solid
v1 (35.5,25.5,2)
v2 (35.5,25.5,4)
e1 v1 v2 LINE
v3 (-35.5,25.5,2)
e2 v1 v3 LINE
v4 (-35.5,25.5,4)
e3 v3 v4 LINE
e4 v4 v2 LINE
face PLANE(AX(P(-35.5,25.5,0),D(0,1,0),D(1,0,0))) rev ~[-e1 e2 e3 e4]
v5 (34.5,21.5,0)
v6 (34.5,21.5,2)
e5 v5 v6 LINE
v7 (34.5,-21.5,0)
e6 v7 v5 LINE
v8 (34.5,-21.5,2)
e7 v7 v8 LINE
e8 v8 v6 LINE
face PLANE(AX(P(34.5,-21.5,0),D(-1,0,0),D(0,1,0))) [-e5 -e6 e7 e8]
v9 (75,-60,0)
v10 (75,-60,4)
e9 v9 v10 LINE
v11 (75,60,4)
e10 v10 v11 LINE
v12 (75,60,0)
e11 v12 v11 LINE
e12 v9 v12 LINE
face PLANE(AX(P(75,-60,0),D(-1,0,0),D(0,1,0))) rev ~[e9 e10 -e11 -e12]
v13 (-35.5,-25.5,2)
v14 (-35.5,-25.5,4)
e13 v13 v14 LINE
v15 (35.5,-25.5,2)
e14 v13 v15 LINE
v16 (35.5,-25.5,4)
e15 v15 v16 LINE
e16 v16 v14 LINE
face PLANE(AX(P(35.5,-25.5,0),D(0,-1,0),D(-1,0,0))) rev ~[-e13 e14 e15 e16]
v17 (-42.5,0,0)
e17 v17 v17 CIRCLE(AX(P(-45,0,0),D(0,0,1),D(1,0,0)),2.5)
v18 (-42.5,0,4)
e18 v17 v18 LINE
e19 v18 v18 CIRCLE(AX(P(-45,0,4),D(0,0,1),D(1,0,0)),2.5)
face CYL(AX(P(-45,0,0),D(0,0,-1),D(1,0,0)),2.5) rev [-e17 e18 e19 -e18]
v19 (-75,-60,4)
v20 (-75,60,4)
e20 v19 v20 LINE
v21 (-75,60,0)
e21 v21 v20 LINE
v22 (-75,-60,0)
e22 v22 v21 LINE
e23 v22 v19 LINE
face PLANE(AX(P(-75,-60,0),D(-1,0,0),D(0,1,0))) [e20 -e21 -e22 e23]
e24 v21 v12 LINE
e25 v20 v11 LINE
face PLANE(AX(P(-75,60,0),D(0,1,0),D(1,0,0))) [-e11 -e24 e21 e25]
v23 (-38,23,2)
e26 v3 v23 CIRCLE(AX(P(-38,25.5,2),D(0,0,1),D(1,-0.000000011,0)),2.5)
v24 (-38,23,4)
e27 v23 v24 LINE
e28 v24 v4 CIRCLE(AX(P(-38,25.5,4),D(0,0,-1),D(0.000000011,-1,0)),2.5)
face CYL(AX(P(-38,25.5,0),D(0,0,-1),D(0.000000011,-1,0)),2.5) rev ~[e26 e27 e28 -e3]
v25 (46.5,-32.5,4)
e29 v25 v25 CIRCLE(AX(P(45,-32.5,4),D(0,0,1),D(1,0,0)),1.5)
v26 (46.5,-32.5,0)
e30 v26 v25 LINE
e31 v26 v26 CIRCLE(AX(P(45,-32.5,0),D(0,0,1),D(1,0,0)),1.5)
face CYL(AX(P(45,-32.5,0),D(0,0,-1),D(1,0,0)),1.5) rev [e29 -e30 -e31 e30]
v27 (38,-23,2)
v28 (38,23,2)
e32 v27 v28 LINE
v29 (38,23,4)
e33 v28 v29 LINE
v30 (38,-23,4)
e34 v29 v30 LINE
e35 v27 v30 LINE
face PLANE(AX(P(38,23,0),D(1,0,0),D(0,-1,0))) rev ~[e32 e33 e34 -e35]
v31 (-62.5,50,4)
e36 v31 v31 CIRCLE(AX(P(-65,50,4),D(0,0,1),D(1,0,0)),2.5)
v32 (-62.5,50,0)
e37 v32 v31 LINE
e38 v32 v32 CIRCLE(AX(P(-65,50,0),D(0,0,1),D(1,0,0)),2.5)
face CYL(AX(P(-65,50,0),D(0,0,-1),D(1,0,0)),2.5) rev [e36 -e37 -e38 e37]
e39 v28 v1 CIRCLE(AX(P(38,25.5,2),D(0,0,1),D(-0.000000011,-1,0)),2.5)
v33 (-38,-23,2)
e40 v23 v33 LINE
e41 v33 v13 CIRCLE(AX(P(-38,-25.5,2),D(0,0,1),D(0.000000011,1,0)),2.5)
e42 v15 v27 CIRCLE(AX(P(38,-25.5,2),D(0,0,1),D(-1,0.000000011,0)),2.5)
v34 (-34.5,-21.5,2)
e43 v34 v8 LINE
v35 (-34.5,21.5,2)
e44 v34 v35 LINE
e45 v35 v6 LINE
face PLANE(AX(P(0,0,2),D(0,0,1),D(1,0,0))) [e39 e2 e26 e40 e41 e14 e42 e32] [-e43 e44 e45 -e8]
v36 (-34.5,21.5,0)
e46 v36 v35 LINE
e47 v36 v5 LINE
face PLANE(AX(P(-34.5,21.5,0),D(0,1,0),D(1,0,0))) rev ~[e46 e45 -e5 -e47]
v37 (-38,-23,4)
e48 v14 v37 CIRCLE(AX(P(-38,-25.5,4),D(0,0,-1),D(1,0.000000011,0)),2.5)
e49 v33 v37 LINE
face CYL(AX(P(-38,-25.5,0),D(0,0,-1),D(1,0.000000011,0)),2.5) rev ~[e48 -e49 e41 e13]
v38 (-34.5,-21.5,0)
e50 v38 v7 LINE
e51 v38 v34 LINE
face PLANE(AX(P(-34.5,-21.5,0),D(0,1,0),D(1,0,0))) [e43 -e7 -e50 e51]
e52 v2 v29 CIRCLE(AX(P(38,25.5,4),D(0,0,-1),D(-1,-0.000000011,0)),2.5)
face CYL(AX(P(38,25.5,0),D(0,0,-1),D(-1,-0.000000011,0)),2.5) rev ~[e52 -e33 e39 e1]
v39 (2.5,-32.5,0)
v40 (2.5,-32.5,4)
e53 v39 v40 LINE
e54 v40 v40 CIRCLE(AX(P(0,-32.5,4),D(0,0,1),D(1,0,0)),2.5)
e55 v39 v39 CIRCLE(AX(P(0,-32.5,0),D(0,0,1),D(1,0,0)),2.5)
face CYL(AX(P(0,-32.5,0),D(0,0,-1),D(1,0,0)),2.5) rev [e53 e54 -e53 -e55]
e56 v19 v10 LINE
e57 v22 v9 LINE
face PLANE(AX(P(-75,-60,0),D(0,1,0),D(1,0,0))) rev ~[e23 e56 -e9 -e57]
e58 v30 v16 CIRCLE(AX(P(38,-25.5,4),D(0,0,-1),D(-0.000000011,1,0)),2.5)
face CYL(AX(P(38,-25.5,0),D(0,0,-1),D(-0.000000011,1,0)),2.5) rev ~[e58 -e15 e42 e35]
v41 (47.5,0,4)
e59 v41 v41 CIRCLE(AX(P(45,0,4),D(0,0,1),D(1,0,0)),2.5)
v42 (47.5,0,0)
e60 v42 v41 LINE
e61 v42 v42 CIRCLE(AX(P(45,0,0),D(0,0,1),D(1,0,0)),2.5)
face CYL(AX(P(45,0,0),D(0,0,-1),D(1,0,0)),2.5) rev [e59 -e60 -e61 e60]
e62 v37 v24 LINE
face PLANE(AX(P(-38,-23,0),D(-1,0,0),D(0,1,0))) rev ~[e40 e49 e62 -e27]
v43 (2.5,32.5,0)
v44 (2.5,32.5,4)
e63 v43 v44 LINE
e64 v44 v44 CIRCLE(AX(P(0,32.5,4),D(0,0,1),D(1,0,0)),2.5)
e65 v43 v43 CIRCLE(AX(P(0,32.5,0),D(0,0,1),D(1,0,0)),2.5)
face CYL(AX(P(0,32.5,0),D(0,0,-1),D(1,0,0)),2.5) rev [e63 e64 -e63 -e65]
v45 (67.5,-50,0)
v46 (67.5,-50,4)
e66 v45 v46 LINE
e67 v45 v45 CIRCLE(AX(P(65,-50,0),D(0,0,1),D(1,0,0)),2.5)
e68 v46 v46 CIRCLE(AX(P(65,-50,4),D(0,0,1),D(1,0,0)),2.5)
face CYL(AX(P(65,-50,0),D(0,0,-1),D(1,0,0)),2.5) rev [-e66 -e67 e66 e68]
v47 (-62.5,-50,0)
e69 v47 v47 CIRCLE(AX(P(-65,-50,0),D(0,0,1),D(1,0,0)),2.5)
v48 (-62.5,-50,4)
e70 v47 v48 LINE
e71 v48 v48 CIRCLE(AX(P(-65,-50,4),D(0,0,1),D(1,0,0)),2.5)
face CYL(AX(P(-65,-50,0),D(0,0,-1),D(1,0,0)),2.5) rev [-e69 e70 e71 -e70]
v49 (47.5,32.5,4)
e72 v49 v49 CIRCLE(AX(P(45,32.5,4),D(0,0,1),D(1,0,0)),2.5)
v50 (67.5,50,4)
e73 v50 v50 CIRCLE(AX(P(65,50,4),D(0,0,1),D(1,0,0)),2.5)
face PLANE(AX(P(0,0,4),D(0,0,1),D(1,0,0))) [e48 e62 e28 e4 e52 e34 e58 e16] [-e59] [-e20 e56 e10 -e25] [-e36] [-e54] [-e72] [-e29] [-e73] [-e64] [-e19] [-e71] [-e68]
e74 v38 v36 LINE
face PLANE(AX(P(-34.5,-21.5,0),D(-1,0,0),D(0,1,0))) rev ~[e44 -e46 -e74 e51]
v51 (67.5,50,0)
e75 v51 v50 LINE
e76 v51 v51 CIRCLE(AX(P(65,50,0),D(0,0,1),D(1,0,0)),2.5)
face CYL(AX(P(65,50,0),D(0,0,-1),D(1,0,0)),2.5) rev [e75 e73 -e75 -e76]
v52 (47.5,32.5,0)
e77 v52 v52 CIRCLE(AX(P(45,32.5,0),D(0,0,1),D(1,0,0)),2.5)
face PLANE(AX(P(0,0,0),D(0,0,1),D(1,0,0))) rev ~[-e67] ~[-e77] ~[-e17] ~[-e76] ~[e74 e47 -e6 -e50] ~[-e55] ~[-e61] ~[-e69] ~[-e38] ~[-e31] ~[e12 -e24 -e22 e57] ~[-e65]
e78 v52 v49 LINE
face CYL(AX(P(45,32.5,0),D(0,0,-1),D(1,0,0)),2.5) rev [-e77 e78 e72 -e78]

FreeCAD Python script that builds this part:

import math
import FreeCAD as App
import Part
import Sketcher
Q = App.Units.Quantity

doc = App.newDocument("Part")
body = doc.addObject("PartDesign::Body", "Body")

sketch1 = doc.addObject("Sketcher::SketchObject", "Sketch")
body.addObject(sketch1)
sketch1.AttachmentSupport = (doc.XY_Plane, [""])
sketch1.MapMode = "FlatFace"
sketch1.addGeometry(Part.LineSegment(App.Vector(-75, 60, 0), App.Vector(-75, -60, 0)), False)
sketch1.addGeometry(Part.LineSegment(App.Vector(-75, -60, 0), App.Vector(75, -60, 0)), False)
sketch1.addGeometry(Part.LineSegment(App.Vector(75, -60, 0), App.Vector(75, 60, 0)), False)
sketch1.addGeometry(Part.LineSegment(App.Vector(75, 60, 0), App.Vector(-75, 60, 0)), False)
sketch1.addGeometry(Part.Circle(App.Vector(-65, -50, 0), App.Vector(0, 0, 1), 2.5), False)
sketch1.addGeometry(Part.Circle(App.Vector(0, -32.5, 0), App.Vector(0, 0, 1), 2.5), False)
sketch1.addGeometry(Part.Circle(App.Vector(65, -50, 0), App.Vector(0, 0, 1), 2.5), False)
sketch1.addGeometry(Part.Circle(App.Vector(45, -32.5, 0), App.Vector(0, 0, 1), 1.5), False)
sketch1.addGeometry(Part.Circle(App.Vector(-45, 0, 0), App.Vector(0, 0, 1), 2.5), False)
sketch1.addGeometry(Part.Circle(App.Vector(-65, 50, 0), App.Vector(0, 0, 1), 2.5), False)
sketch1.addGeometry(Part.ArcOfCircle(Part.Circle(App.Vector(-38, 25.5, 0), App.Vector(0, 0, 1), 2.5), math.radians(-0.000001), math.radians(270.000001)), False)
sketch1.addGeometry(Part.LineSegment(App.Vector(-35.5, 25.5, 0), App.Vector(35.5, 25.5, 0)), False)
sketch1.addGeometry(Part.ArcOfCircle(Part.Circle(App.Vector(38, 25.5, 0), App.Vector(0, 0, 1), 2.5), math.radians(-90.000001), math.radians(180.000001)), False)
sketch1.addGeometry(Part.LineSegment(App.Vector(38, 23, 0), App.Vector(38, -23, 0)), False)
sketch1.addGeometry(Part.ArcOfCircle(Part.Circle(App.Vector(38, -25.5, 0), App.Vector(0, 0, 1), 2.5), math.radians(179.999999), math.radians(450.000001)), False)
sketch1.addGeometry(Part.LineSegment(App.Vector(35.5, -25.5, 0), App.Vector(-35.5, -25.5, 0)), False)
sketch1.addGeometry(Part.ArcOfCircle(Part.Circle(App.Vector(-38, -25.5, 0), App.Vector(0, 0, 1), 2.5), math.radians(89.999999), math.radians(360.000001)), False)
sketch1.addGeometry(Part.LineSegment(App.Vector(-38, -23, 0), App.Vector(-38, 23, 0)), False)
sketch1.addGeometry(Part.Circle(App.Vector(45, 0, 0), App.Vector(0, 0, 1), 2.5), False)
sketch1.addGeometry(Part.Circle(App.Vector(0, 32.5, 0), App.Vector(0, 0, 1), 2.5), False)
sketch1.addGeometry(Part.Circle(App.Vector(45, 32.5, 0), App.Vector(0, 0, 1), 2.5), False)
sketch1.addGeometry(Part.Circle(App.Vector(65, 50, 0), App.Vector(0, 0, 1), 2.5), False)
sketch1.addConstraint(Sketcher.Constraint("Coincident", 0, 2, 1, 1))
sketch1.addConstraint(Sketcher.Constraint("Coincident", 1, 2, 2, 1))
sketch1.addConstraint(Sketcher.Constraint("Coincident", 2, 2, 3, 1))
sketch1.addConstraint(Sketcher.Constraint("Coincident", 3, 2, 0, 1))
sketch1.addConstraint(Sketcher.Constraint("Coincident", 10, 1, 11, 1))
sketch1.addConstraint(Sketcher.Constraint("Coincident", 11, 2, 12, 2))
sketch1.addConstraint(Sketcher.Constraint("Coincident", 12, 1, 13, 1))
sketch1.addConstraint(Sketcher.Constraint("Coincident", 13, 2, 14, 2))
sketch1.addConstraint(Sketcher.Constraint("Coincident", 14, 1, 15, 1))
sketch1.addConstraint(Sketcher.Constraint("Coincident", 15, 2, 16, 2))
sketch1.addConstraint(Sketcher.Constraint("Coincident", 16, 1, 17, 1))
sketch1.addConstraint(Sketcher.Constraint("Coincident", 17, 2, 10, 2))
sketch1.addConstraint(Sketcher.Constraint("Vertical", 0))
sketch1.addConstraint(Sketcher.Constraint("Horizontal", 1))
sketch1.addConstraint(Sketcher.Constraint("Vertical", 2))
sketch1.addConstraint(Sketcher.Constraint("Horizontal", 3))
sketch1.addConstraint(Sketcher.Constraint("Horizontal", 11))
sketch1.addConstraint(Sketcher.Constraint("Vertical", 13))
sketch1.addConstraint(Sketcher.Constraint("Horizontal", 15))
sketch1.addConstraint(Sketcher.Constraint("Vertical", 17))
sketch1.addConstraint(Sketcher.Constraint("Equal", 4, 5))
sketch1.addConstraint(Sketcher.Constraint("Equal", 5, 6))
sketch1.addConstraint(Sketcher.Constraint("Equal", 6, 8))
sketch1.addConstraint(Sketcher.Constraint("Equal", 8, 9))
sketch1.addConstraint(Sketcher.Constraint("Equal", 9, 10))
sketch1.addConstraint(Sketcher.Constraint("Equal", 10, 12))
sketch1.addConstraint(Sketcher.Constraint("Equal", 12, 14))
sketch1.addConstraint(Sketcher.Constraint("Equal", 14, 16))
sketch1.addConstraint(Sketcher.Constraint("Equal", 16, 18))
sketch1.addConstraint(Sketcher.Constraint("Equal", 18, 19))
sketch1.addConstraint(Sketcher.Constraint("Equal", 19, 20))
sketch1.addConstraint(Sketcher.Constraint("Equal", 20, 21))
sketch1.addConstraint(Sketcher.Constraint("Symmetric", 6, 3, 9, 3, -1, 1))
sketch1.addConstraint(Sketcher.Constraint("Symmetric", 10, 3, 14, 3, -1, 1))
sketch1.addConstraint(Sketcher.Constraint("Symmetric", 12, 3, 16, 3, -1, 1))
sketch1.addConstraint(Sketcher.Constraint("Symmetric", 8, 3, 18, 3, -1, 1))
sketch1.addConstraint(Sketcher.Constraint("Symmetric", 5, 3, 19, 3, -1, 1))
sketch1.addConstraint(Sketcher.Constraint("Symmetric", 4, 3, 21, 3, -1, 1))
sketch1.addConstraint(Sketcher.Constraint("Symmetric", 0, 2, 2, 2, -1, 1))
sketch1.addConstraint(Sketcher.Constraint("Symmetric", 4, 3, 6, 3, -2))
sketch1.addConstraint(Sketcher.Constraint("Symmetric", 10, 3, 12, 3, -2))
sketch1.addConstraint(Sketcher.Constraint("Symmetric", 7, 3, 20, 3, -1))
sketch1.addConstraint(Sketcher.Constraint("PointOnObject", 5, 3, -2))
sketch1.addConstraint(Sketcher.Constraint("PointOnObject", 8, 3, -1))
sketch1.addConstraint(Sketcher.Constraint("Horizontal", 5, 3, 7, 3))
sketch1.addConstraint(Sketcher.Constraint("Horizontal", 12, 3, 10, 1))
sketch1.addConstraint(Sketcher.Constraint("Horizontal", 16, 3, 14, 1))
sketch1.addConstraint(Sketcher.Constraint("Vertical", 7, 3, 18, 3))
sketch1.addConstraint(Sketcher.Constraint("Vertical", 14, 3, 12, 1))
sketch1.addConstraint(Sketcher.Constraint("Vertical", 10, 3, 16, 1))
sketch1.addConstraint(Sketcher.Constraint("Diameter", 4, Q("5 mm")))
sketch1.addConstraint(Sketcher.Constraint("Diameter", 7, Q("3 mm")))
sketch1.addConstraint(Sketcher.Constraint("DistanceX", 1, 1, 1, 2, Q("150 mm")))
sketch1.addConstraint(Sketcher.Constraint("DistanceX", 11, 1, 11, 2, Q("71 mm")))
sketch1.addConstraint(Sketcher.Constraint("DistanceY", 0, 2, 0, 1, Q("120 mm")))
sketch1.addConstraint(Sketcher.Constraint("DistanceY", 13, 2, 13, 1, Q("46 mm")))
sketch1.addConstraint(Sketcher.Constraint("DistanceX", 4, 3, -1, 1, Q("65 mm")))
sketch1.addConstraint(Sketcher.Constraint("DistanceY", 4, 3, -1, 1, Q("50 mm")))
sketch1.addConstraint(Sketcher.Constraint("DistanceX", -1, 1, 7, 3, Q("45 mm")))
sketch1.addConstraint(Sketcher.Constraint("DistanceY", 5, 3, 10, 3, Q("58 mm")))
pad1 = doc.addObject("PartDesign::Pad", "Pad")
body.addObject(pad1)
pad1.Profile = sketch1
pad1.Length = 4

sketch2 = doc.addObject("Sketcher::SketchObject", "Sketch001")
body.addObject(sketch2)
sketch2.AttachmentSupport = (doc.XY_Plane, [""])
sketch2.MapMode = "FlatFace"
sketch2.addGeometry(Part.ArcOfCircle(Part.Circle(App.Vector(38, 25.5, 0), App.Vector(0, 0, 1), 2.5), math.radians(-90.000001), math.radians(180.000001)), False)
sketch2.addGeometry(Part.LineSegment(App.Vector(35.5, 25.5, 0), App.Vector(-35.5, 25.5, 0)), False)
sketch2.addGeometry(Part.ArcOfCircle(Part.Circle(App.Vector(-38, 25.5, 0), App.Vector(0, 0, 1), 2.5), math.radians(-0.000001), math.radians(270.000001)), False)
sketch2.addGeometry(Part.LineSegment(App.Vector(-38, 23, 0), App.Vector(-38, -23, 0)), False)
sketch2.addGeometry(Part.ArcOfCircle(Part.Circle(App.Vector(-38, -25.5, 0), App.Vector(0, 0, 1), 2.5), math.radians(89.999999), math.radians(360.000001)), False)
sketch2.addGeometry(Part.LineSegment(App.Vector(-35.5, -25.5, 0), App.Vector(35.5, -25.5, 0)), False)
sketch2.addGeometry(Part.ArcOfCircle(Part.Circle(App.Vector(38, -25.5, 0), App.Vector(0, 0, 1), 2.5), math.radians(179.999999), math.radians(450.000001)), False)
sketch2.addGeometry(Part.LineSegment(App.Vector(38, -23, 0), App.Vector(38, 23, 0)), False)
sketch2.addGeometry(Part.LineSegment(App.Vector(34.5, -21.5, 0), App.Vector(-34.5, -21.5, 0)), False)
sketch2.addGeometry(Part.LineSegment(App.Vector(-34.5, -21.5, 0), App.Vector(-34.5, 21.5, 0)), False)
sketch2.addGeometry(Part.LineSegment(App.Vector(-34.5, 21.5, 0), App.Vector(34.5, 21.5, 0)), False)
sketch2.addGeometry(Part.LineSegment(App.Vector(34.5, 21.5, 0), App.Vector(34.5, -21.5, 0)), False)
sketch2.addConstraint(Sketcher.Constraint("Coincident", 0, 2, 1, 1))
sketch2.addConstraint(Sketcher.Constraint("Coincident", 1, 2, 2, 1))
sketch2.addConstraint(Sketcher.Constraint("Coincident", 2, 2, 3, 1))
sketch2.addConstraint(Sketcher.Constraint("Coincident", 3, 2, 4, 1))
sketch2.addConstraint(Sketcher.Constraint("Coincident", 4, 2, 5, 1))
sketch2.addConstraint(Sketcher.Constraint("Coincident", 5, 2, 6, 1))
sketch2.addConstraint(Sketcher.Constraint("Coincident", 6, 2, 7, 1))
sketch2.addConstraint(Sketcher.Constraint("Coincident", 7, 2, 0, 1))
sketch2.addConstraint(Sketcher.Constraint("Coincident", 8, 2, 9, 1))
sketch2.addConstraint(Sketcher.Constraint("Coincident", 9, 2, 10, 1))
sketch2.addConstraint(Sketcher.Constraint("Coincident", 10, 2, 11, 1))
sketch2.addConstraint(Sketcher.Constraint("Coincident", 11, 2, 8, 1))
sketch2.addConstraint(Sketcher.Constraint("Horizontal", 1))
sketch2.addConstraint(Sketcher.Constraint("Vertical", 3))
sketch2.addConstraint(Sketcher.Constraint("Horizontal", 5))
sketch2.addConstraint(Sketcher.Constraint("Vertical", 7))
sketch2.addConstraint(Sketcher.Constraint("Horizontal", 8))
sketch2.addConstraint(Sketcher.Constraint("Vertical", 9))
sketch2.addConstraint(Sketcher.Constraint("Horizontal", 10))
sketch2.addConstraint(Sketcher.Constraint("Vertical", 11))
sketch2.addConstraint(Sketcher.Constraint("Equal", 0, 2))
sketch2.addConstraint(Sketcher.Constraint("Equal", 2, 4))
sketch2.addConstraint(Sketcher.Constraint("Equal", 4, 6))
sketch2.addConstraint(Sketcher.Constraint("Symmetric", 0, 3, 4, 3, -1, 1))
sketch2.addConstraint(Sketcher.Constraint("Symmetric", 2, 3, 6, 3, -1, 1))
sketch2.addConstraint(Sketcher.Constraint("Symmetric", 8, 2, 10, 2, -1, 1))
sketch2.addConstraint(Sketcher.Constraint("Symmetric", 0, 3, 2, 3, -2))
sketch2.addConstraint(Sketcher.Constraint("Horizontal", 2, 3, 0, 2))
sketch2.addConstraint(Sketcher.Constraint("Horizontal", 6, 3, 4, 2))
sketch2.addConstraint(Sketcher.Constraint("Vertical", 4, 3, 2, 2))
sketch2.addConstraint(Sketcher.Constraint("Vertical", 0, 3, 6, 2))
sketch2.addConstraint(Sketcher.Constraint("Radius", 0, Q("2.5 mm")))
sketch2.addConstraint(Sketcher.Constraint("DistanceX", 1, 2, 1, 1, Q("71 mm")))
sketch2.addConstraint(Sketcher.Constraint("DistanceX", 8, 2, 8, 1, Q("69 mm")))
sketch2.addConstraint(Sketcher.Constraint("DistanceY", 3, 2, 3, 1, Q("46 mm")))
sketch2.addConstraint(Sketcher.Constraint("DistanceY", 9, 1, 9, 2, Q("43 mm")))
pad2 = doc.addObject("PartDesign::Pad", "Pad001")
body.addObject(pad2)
pad2.Profile = sketch2
pad2.Length = 2

doc.recompute()
